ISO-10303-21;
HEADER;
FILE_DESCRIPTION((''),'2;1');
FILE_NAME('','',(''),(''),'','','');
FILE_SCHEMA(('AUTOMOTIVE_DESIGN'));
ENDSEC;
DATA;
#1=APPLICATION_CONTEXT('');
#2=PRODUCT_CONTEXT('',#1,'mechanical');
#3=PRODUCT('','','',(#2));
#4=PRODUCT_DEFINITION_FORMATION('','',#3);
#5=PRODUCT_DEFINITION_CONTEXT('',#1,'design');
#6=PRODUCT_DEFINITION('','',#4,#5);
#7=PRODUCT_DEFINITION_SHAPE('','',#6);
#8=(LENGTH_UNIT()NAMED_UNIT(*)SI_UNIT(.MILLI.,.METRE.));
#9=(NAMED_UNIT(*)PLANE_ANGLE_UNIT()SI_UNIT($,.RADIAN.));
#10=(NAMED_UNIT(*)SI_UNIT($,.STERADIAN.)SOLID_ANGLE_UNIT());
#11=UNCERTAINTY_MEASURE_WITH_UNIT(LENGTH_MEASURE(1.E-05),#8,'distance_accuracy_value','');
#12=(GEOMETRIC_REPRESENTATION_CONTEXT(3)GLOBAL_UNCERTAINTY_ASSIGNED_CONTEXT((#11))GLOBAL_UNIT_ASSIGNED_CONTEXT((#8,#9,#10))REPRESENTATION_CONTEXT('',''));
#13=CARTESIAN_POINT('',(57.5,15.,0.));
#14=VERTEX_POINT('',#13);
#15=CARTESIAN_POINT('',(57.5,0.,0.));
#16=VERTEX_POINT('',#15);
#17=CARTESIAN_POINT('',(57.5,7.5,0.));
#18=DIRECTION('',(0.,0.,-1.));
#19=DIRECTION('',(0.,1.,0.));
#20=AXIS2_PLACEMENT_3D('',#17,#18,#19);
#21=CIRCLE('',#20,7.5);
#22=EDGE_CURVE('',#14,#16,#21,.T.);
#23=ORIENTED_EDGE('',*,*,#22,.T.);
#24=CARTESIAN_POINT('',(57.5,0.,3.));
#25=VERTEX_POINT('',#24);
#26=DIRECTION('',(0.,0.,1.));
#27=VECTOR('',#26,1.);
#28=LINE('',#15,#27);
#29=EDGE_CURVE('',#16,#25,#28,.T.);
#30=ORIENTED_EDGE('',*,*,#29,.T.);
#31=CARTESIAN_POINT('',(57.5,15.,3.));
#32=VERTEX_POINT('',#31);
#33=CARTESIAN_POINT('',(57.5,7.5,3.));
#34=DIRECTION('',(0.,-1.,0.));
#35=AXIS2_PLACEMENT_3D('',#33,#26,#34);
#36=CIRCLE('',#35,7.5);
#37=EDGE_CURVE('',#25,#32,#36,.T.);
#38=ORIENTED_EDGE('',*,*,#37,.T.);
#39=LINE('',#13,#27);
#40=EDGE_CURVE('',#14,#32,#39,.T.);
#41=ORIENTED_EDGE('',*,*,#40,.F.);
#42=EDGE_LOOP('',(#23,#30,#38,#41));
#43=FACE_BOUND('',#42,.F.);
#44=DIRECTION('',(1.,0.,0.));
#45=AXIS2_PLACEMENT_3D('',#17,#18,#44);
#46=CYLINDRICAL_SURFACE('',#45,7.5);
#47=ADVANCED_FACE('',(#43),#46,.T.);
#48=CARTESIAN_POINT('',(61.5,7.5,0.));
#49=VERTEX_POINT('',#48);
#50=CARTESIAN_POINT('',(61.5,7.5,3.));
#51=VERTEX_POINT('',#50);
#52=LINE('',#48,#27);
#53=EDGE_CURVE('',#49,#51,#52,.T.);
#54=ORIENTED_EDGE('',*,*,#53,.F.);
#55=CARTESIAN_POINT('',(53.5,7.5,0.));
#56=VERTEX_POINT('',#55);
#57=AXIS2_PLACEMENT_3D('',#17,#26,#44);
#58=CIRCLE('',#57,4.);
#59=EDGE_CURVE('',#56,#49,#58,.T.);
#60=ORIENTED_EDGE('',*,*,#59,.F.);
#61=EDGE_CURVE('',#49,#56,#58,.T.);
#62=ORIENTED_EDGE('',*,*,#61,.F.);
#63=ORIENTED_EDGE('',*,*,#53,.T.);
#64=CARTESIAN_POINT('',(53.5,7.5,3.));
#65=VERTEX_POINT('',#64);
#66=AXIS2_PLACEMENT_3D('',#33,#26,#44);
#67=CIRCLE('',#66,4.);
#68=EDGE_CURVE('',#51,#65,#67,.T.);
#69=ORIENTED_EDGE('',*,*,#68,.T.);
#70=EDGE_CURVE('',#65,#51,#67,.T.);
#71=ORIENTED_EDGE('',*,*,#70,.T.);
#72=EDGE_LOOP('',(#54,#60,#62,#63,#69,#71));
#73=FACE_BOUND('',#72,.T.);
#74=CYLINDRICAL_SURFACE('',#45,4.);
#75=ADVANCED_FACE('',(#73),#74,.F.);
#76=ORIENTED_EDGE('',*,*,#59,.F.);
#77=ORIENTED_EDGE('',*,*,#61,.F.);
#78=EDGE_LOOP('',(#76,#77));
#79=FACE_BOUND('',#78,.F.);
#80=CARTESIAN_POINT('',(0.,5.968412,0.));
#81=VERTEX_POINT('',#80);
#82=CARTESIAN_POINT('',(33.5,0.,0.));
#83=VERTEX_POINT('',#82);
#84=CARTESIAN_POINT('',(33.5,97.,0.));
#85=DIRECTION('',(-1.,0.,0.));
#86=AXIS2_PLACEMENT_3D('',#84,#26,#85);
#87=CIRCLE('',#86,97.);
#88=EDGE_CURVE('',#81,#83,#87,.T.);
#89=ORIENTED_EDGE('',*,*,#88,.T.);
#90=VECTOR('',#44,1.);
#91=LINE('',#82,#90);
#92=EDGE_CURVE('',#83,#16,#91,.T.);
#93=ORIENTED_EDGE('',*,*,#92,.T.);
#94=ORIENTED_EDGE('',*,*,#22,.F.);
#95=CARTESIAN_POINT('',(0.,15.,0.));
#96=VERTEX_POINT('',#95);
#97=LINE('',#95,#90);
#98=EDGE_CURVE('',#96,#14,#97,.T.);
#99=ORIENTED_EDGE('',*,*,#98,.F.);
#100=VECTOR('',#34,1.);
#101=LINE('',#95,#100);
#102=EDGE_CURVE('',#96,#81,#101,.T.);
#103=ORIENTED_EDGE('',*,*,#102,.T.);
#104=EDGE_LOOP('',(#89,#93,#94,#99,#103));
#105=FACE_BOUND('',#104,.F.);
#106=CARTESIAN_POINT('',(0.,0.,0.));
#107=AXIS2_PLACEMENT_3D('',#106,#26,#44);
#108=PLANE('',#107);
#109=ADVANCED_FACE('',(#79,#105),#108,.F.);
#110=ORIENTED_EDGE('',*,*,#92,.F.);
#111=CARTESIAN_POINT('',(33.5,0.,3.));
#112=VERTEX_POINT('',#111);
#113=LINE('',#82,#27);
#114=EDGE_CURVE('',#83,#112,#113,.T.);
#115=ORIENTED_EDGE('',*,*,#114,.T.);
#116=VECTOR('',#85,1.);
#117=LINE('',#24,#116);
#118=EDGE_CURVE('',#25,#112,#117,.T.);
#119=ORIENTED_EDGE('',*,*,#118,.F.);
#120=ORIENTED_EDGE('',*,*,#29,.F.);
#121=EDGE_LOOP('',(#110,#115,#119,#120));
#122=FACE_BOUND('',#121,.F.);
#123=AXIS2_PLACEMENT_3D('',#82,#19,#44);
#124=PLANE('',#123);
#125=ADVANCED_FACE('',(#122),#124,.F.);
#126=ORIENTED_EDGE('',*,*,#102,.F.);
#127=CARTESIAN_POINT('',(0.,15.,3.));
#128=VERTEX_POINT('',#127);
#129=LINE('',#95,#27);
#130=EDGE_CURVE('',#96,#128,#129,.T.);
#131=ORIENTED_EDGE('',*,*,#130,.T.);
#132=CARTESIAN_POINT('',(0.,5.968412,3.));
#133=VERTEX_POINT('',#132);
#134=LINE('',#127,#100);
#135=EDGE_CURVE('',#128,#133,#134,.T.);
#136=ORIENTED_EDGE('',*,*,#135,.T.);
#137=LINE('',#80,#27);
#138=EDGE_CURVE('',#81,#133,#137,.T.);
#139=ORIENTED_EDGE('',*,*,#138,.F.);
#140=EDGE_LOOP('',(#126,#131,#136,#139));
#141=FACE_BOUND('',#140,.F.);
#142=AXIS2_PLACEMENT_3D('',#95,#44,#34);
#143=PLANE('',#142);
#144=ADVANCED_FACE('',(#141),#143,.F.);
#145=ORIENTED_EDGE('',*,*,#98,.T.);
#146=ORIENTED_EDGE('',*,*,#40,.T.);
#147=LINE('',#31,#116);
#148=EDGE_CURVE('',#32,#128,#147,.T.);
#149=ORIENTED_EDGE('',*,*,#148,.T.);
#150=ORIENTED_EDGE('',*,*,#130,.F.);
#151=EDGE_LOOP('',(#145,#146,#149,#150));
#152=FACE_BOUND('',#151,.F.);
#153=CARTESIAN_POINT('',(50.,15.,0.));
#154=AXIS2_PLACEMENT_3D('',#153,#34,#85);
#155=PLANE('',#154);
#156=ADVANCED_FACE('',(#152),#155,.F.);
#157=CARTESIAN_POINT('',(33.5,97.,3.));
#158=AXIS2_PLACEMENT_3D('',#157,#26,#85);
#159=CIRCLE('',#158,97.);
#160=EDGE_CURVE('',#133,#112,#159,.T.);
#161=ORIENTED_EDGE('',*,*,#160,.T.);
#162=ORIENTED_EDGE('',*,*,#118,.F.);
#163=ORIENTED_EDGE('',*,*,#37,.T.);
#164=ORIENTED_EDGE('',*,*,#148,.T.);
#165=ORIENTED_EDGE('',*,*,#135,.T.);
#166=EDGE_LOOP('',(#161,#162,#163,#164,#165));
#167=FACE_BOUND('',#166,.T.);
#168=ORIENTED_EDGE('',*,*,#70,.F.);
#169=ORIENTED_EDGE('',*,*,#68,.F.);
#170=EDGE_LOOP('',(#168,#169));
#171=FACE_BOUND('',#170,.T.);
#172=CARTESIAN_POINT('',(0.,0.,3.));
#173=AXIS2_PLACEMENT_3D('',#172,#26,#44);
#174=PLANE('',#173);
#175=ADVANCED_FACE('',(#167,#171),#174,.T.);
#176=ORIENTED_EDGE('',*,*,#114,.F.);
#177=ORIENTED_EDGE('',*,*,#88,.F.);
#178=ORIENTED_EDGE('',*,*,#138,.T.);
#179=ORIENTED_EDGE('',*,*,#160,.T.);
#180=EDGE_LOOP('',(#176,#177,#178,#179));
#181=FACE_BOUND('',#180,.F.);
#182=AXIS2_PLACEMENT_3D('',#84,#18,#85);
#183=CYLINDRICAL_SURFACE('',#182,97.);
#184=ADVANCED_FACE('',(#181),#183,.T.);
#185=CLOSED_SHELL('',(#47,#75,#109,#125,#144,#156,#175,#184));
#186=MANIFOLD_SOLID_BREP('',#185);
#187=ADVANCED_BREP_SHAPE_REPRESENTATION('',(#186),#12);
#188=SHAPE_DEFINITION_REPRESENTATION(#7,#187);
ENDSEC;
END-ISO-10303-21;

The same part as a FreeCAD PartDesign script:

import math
import FreeCAD as App
import Part
import Sketcher
from FreeCAD import Vector

doc = App.newDocument("Part")
body = doc.addObject("PartDesign::Body", "Body")

sketch1 = doc.addObject("Sketcher::SketchObject", "Sketch")
body.addObject(sketch1)
sketch1.AttachmentSupport = (doc.XY_Plane, [""])
sketch1.MapMode = "FlatFace"
sketch1.addGeometry([
    Part.ArcOfCircle(Part.Circle(Vector(33.5, 97, 0), Vector(0, 0, 1), 97), math.radians(-110), math.radians(-90)),
    Part.LineSegment(Vector(33.5, 0, 0), Vector(57.5, 0, 0)),
    Part.ArcOfCircle(Part.Circle(Vector(57.5, 7.5, 0), Vector(0, 0, 1), 7.5), math.radians(-90), math.radians(90)),
    Part.LineSegment(Vector(57.5, 15, 0), Vector(0, 15, 0)),
    Part.LineSegment(Vector(0, 15, 0), Vector(0, 6, 0)),
    Part.Circle(Vector(57.5, 7.5, 0), Vector(0, 0, 1), 4),
], False)
sketch1.addConstraint([
    Sketcher.Constraint("Tangent", 0, 2, 1, 1),
    Sketcher.Constraint("Tangent", 1, 2, 2, 1),
    Sketcher.Constraint("Tangent", 2, 2, 3, 1),
    Sketcher.Constraint("Coincident", 3, 2, 4, 1),
    Sketcher.Constraint("Coincident", 4, 2, 0, 1),
    Sketcher.Constraint("Horizontal", 1),
    Sketcher.Constraint("Horizontal", 3),
    Sketcher.Constraint("Vertical", 4),
    Sketcher.Constraint("Coincident", 5, 3, 2, 3),
    Sketcher.Constraint("PointOnObject", 0, 2, -1),
    Sketcher.Constraint("PointOnObject", 3, 2, -2),
    Sketcher.Constraint("Diameter", 5, 8.0),
    Sketcher.Constraint("Radius", 0, 97.0),
    Sketcher.Constraint("Radius", 2, 7.5),
    Sketcher.Constraint("DistanceX", 1, 1, 1, 2, 24.0),
    Sketcher.Constraint("DistanceX", 3, 2, 3, 1, 57.5),
])
pad1 = doc.addObject("PartDesign::Pad", "Pad")
body.addObject(pad1)
pad1.Profile = sketch1
pad1.Length = 3

doc.recompute()
